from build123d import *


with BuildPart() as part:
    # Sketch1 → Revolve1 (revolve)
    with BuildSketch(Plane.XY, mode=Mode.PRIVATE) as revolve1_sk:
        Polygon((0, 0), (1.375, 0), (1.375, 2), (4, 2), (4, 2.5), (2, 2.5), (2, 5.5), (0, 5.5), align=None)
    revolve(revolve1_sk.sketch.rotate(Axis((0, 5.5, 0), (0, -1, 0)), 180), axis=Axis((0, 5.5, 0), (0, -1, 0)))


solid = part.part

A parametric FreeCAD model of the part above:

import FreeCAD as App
import Part
import Sketcher
from FreeCAD import Vector

doc = App.newDocument("Part")
body = doc.addObject("PartDesign::Body", "Body")

# Sketch on XY plane
sketch1 = doc.addObject("Sketcher::SketchObject", "Sketch")
body.addObject(sketch1)
sketch1.AttachmentSupport = (doc.XY_Plane, [""])
sketch1.MapMode = "FlatFace"
sketch1.addGeometry([
    Part.LineSegment(Vector(0, 0, 0), Vector(1.4, 0, 0)),  # 0
    Part.LineSegment(Vector(1.4, 0, 0), Vector(1.4, 2, 0)),  # 1
    Part.LineSegment(Vector(1.4, 2, 0), Vector(4, 2, 0)),  # 2
    Part.LineSegment(Vector(4, 2, 0), Vector(4, 2.5, 0)),  # 3
    Part.LineSegment(Vector(4, 2.5, 0), Vector(2, 2.5, 0)),  # 4
    Part.LineSegment(Vector(2, 2.5, 0), Vector(2, 5.5, 0)),  # 5
    Part.LineSegment(Vector(2, 5.5, 0), Vector(0, 5.5, 0)),  # 6
    Part.LineSegment(Vector(0, 5.5, 0), Vector(0, 0, 0)),  # 7
], False)
sketch1.addConstraint([
    Sketcher.Constraint("Coincident", 0, 2, 1, 1),
    Sketcher.Constraint("Coincident", 1, 2, 2, 1),
    Sketcher.Constraint("Coincident", 2, 2, 3, 1),
    Sketcher.Constraint("Coincident", 3, 2, 4, 1),
    Sketcher.Constraint("Coincident", 4, 2, 5, 1),
    Sketcher.Constraint("Coincident", 5, 2, 6, 1),
    Sketcher.Constraint("Coincident", 6, 2, 7, 1),
    Sketcher.Constraint("Coincident", 7, 2, 0, 1),
    Sketcher.Constraint("Horizontal", 0),
    Sketcher.Constraint("Vertical", 1),
    Sketcher.Constraint("Horizontal", 2),
    Sketcher.Constraint("Vertical", 3),
    Sketcher.Constraint("Horizontal", 4),
    Sketcher.Constraint("Vertical", 5),
    Sketcher.Constraint("Horizontal", 6),
    Sketcher.Constraint("Vertical", 7),
    Sketcher.Constraint("Coincident", 7, 2, -1, 1),
    Sketcher.Constraint("Equal", 4, 6),
    Sketcher.Constraint("Equal", 6, 1),
    Sketcher.Constraint("DistanceX", 4, 2, 4, 1, 2.0),
    Sketcher.Constraint("DistanceY", 5, 1, 5, 2, 3.0),
    Sketcher.Constraint("DistanceY", 3, 1, 3, 2, 0.5),
    Sketcher.Constraint("DistanceX", 0, 1, 0, 2, 1.375),
])
revolution = doc.addObject("PartDesign::Revolution", "Revolution")
body.addObject(revolution)
revolution.Profile = sketch1
revolution.ReferenceAxis = (sketch1, ["V_Axis"])
revolution.Angle = 360

doc.recompute()
